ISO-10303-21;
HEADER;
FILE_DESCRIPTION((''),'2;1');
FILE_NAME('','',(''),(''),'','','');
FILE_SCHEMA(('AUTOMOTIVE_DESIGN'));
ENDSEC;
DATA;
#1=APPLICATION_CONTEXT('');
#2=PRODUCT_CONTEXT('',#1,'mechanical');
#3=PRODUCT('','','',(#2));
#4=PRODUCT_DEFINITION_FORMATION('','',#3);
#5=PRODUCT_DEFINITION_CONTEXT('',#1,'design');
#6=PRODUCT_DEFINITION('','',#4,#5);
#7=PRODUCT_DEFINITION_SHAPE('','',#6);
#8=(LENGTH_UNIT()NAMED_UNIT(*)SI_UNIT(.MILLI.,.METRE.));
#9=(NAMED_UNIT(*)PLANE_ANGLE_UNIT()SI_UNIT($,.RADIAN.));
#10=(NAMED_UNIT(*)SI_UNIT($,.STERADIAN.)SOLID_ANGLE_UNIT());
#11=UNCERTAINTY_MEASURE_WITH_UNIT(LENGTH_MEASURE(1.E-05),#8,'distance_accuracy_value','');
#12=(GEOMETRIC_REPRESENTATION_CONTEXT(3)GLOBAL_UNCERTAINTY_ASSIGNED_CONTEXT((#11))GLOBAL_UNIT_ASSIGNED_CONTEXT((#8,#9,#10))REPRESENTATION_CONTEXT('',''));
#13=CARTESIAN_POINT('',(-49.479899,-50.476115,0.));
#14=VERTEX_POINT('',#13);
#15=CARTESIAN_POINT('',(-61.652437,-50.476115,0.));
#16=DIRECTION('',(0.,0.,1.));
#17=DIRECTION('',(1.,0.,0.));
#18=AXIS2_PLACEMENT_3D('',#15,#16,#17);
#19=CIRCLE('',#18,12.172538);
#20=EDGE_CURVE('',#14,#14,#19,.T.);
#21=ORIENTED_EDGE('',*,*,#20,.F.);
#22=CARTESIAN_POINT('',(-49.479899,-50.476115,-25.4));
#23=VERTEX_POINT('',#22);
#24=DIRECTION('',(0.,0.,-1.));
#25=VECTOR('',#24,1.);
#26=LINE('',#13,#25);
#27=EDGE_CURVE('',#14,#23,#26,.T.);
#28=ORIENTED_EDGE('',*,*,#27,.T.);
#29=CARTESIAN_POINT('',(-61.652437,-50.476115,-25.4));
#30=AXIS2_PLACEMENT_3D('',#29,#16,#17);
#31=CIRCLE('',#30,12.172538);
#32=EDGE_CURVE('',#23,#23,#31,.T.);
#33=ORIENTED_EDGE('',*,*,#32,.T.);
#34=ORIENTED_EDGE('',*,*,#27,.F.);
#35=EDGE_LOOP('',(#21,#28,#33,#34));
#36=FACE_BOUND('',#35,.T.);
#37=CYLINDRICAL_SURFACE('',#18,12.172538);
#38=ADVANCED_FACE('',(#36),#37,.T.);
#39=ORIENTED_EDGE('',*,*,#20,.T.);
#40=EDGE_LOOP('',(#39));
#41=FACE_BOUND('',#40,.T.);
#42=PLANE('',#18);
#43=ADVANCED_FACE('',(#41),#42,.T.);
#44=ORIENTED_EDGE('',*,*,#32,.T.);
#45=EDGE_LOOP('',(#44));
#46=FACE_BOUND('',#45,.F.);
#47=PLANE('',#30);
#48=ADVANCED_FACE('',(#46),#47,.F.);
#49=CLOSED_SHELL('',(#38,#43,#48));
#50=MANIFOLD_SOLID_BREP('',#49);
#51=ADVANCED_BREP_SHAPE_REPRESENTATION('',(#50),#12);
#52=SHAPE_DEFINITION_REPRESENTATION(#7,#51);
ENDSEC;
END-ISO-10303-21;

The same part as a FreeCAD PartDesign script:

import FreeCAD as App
import Part
import Sketcher
Q = App.Units.Quantity

doc = App.newDocument("Part")
body = doc.addObject("PartDesign::Body", "Body")

# Sketch on XY plane
sketch1 = body.newObject("Sketcher::SketchObject", "Sketch")
sketch1.AttachmentSupport = (doc.getObject("XY_Plane"), [""])
sketch1.MapMode = "FlatFace"
sketch1.addGeometry(Part.Circle(App.Vector(-62, -50, 0), App.Vector(0, 0, 1), 12), False)
sketch1.addConstraint([
    Sketcher.Constraint("Diameter", 0, Q("24.345076 mm")),
    Sketcher.Constraint("DistanceX", 0, 3, -1, 1, Q("61.652437 mm")),
    Sketcher.Constraint("DistanceY", 0, 3, -1, 1, Q("50.476115 mm")),
])
pad1 = body.newObject("PartDesign::Pad", "Pad")
pad1.Profile = sketch1
pad1.Length = Q("1 in")
pad1.Reversed = True

doc.recompute()
